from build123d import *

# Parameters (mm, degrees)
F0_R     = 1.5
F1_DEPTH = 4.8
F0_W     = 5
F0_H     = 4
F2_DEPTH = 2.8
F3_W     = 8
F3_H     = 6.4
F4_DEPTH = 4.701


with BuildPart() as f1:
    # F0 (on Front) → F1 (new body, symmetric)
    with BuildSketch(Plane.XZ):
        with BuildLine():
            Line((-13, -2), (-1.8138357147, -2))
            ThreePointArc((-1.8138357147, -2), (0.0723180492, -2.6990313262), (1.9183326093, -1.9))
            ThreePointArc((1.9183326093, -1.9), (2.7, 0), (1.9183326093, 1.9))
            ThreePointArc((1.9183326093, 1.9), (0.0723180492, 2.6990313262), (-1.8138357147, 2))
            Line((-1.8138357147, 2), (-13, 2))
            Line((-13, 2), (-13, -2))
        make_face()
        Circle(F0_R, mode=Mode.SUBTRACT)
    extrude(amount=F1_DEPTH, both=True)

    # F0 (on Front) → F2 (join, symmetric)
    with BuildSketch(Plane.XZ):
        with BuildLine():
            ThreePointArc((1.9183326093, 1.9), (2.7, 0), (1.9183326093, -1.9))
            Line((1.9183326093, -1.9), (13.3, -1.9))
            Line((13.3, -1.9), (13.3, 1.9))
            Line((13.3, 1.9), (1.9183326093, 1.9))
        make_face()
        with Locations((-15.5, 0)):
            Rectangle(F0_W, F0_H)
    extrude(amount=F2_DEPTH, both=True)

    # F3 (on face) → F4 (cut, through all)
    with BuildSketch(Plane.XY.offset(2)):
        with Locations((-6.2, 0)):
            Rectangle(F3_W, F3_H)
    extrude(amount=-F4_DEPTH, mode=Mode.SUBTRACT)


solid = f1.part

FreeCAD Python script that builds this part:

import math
import FreeCAD as App
import Part
import Sketcher

V = App.Vector


def add_polygon(sketch, points):
    """Adds a closed chain of lines whose ends are joined by coincident constraints."""
    first, n = sketch.GeometryCount, len(points)
    for a, b in zip(points, points[1:] + points[:1]):
        sketch.addGeometry(Part.LineSegment(App.Vector(*a, 0), App.Vector(*b, 0)), False)
    for i in range(n):
        sketch.addConstraint(Sketcher.Constraint("Coincident", first + i, 2, first + (i + 1) % n, 1))

doc = App.newDocument("Part")
body = doc.addObject("PartDesign::Body", "Body")

sketch1 = body.newObject("Sketcher::SketchObject", "Sketch")
sketch1.AttachmentSupport = (doc.getObject("XZ_Plane"), [""])
sketch1.MapMode = "FlatFace"
sketch1.addGeometry([
    Part.LineSegment(V(-13, -2, 0), V(-1.8, -2, 0)),
    Part.ArcOfCircle(Part.Circle(V(0, 0, 0), V(0, 0, 1), 2.7), math.radians(-132), math.radians(-45)),
    Part.ArcOfCircle(Part.Circle(V(0, 0, 0), V(0, 0, 1), 2.7), math.radians(-45), math.radians(45)),
    Part.ArcOfCircle(Part.Circle(V(0, 0, 0), V(0, 0, 1), 2.7), math.radians(45), math.radians(132)),
    Part.LineSegment(V(-1.8, 2, 0), V(-13, 2, 0)),
    Part.LineSegment(V(-13, 2, 0), V(-13, -2, 0)),
    Part.Circle(V(0, 0, 0), V(0, 0, 1), 1.5),
], False)
sketch1.addConstraint([
    Sketcher.Constraint("Coincident", 0, 2, 1, 1),
    Sketcher.Constraint("Tangent", 1, 2, 2, 1),
    Sketcher.Constraint("Tangent", 2, 2, 3, 1),
    Sketcher.Constraint("Coincident", 3, 2, 4, 1),
    Sketcher.Constraint("Coincident", 4, 2, 5, 1),
    Sketcher.Constraint("Coincident", 5, 2, 0, 1),
    Sketcher.Constraint("Horizontal", 0),
    Sketcher.Constraint("Horizontal", 4),
    Sketcher.Constraint("Vertical", 5),
    Sketcher.Constraint("Coincident", 1, 3, -1, 1),
    Sketcher.Constraint("Coincident", 3, 3, -1, 1),
    Sketcher.Constraint("Coincident", 6, 3, -1, 1),
    Sketcher.Constraint("Vertical", 1, 2, 2, 2),
    Sketcher.Constraint("Vertical", 0, 2, 3, 2),
    Sketcher.Constraint("Diameter", 6, 3.0),
    Sketcher.Constraint("Radius", 1, 2.7),
    Sketcher.Constraint("DistanceY", 5, 2, 5, 1, 4.0),
    Sketcher.Constraint("DistanceX", 4, 2, -1, 1, 13.0),
    Sketcher.Constraint("DistanceY", 1, 2, -1, 1, 1.9),
])
pad1 = body.newObject("PartDesign::Pad", "Pad")
pad1.Profile = sketch1
pad1.Length = 9.6
pad1.Midplane = True

sketch2 = body.newObject("Sketcher::SketchObject", "Sketch001")
sketch2.AttachmentSupport = (doc.getObject("XZ_Plane"), [""])
sketch2.MapMode = "FlatFace"
sketch2.addGeometry(Part.ArcOfCircle(Part.Circle(V(0, 0, 0), V(0, 0, 1), 2.7), math.radians(-45), math.radians(45)), False)
sketch2.addGeometry(Part.LineSegment(V(1.9, -1.9, 0), V(13.3, -1.9, 0)), False)
sketch2.addGeometry(Part.LineSegment(V(13.3, -1.9, 0), V(13.3, 1.9, 0)), False)
sketch2.addGeometry(Part.LineSegment(V(13.3, 1.9, 0), V(1.9, 1.9, 0)), False)
add_polygon(sketch2, [(-18, 2), (-18, -2), (-13, -2), (-13, 2)])
sketch2.addConstraint([
    Sketcher.Constraint("Coincident", 0, 1, 1, 1),
    Sketcher.Constraint("Coincident", 1, 2, 2, 1),
    Sketcher.Constraint("Coincident", 2, 2, 3, 1),
    Sketcher.Constraint("Coincident", 3, 2, 0, 2),
    Sketcher.Constraint("Horizontal", 1),
    Sketcher.Constraint("Vertical", 2),
    Sketcher.Constraint("Horizontal", 3),
    Sketcher.Constraint("Vertical", 4),
    Sketcher.Constraint("Horizontal", 5),
    Sketcher.Constraint("Vertical", 6),
    Sketcher.Constraint("Horizontal", 7),
    Sketcher.Constraint("Coincident", 0, 3, -1, 1),
    Sketcher.Constraint("Vertical", 0, 1, 3, 2),
    Sketcher.Constraint("Radius", 0, 2.7),
    Sketcher.Constraint("DistanceX", 5, 1, 5, 2, 5.0),
    Sketcher.Constraint("DistanceY", 4, 2, 4, 1, 4.0),
    Sketcher.Constraint("DistanceY", 2, 1, 2, 2, 3.8),
    Sketcher.Constraint("DistanceX", 4, 2, -1, 1, 18.0),
    Sketcher.Constraint("DistanceY", 4, 2, -1, 1, 2.0),
    Sketcher.Constraint("DistanceX", -1, 1, 1, 2, 13.3),
])
pad2 = body.newObject("PartDesign::Pad", "Pad001")
pad2.Profile = sketch2
pad2.Length = 5.6
pad2.Midplane = True

sketch3 = body.newObject("Sketcher::SketchObject", "Sketch002")
sketch3.AttachmentSupport = (doc.getObject("XY_Plane"), [""])
sketch3.MapMode = "FlatFace"
sketch3.AttachmentOffset = App.Placement(V(0, 0, 2), App.Rotation())
add_polygon(sketch3, [(-10, 3), (-10, -3), (-2, -3), (-2, 3)])
sketch3.addConstraint([
    Sketcher.Constraint("Vertical", 0),
    Sketcher.Constraint("Horizontal", 1),
    Sketcher.Constraint("Vertical", 2),
    Sketcher.Constraint("Horizontal", 3),
    Sketcher.Constraint("DistanceX", 1, 1, 1, 2, 8.0),
    Sketcher.Constraint("DistanceY", 0, 2, 0, 1, 6.4),
    Sketcher.Constraint("DistanceX", 0, 2, -1, 1, 10.2),
    Sketcher.Constraint("DistanceY", 0, 2, -1, 1, 3.2),
])
pocket1 = body.newObject("PartDesign::Pocket", "Pocket")
pocket1.Profile = sketch3
pocket1.Type = "ThroughAll"

doc.recompute()
